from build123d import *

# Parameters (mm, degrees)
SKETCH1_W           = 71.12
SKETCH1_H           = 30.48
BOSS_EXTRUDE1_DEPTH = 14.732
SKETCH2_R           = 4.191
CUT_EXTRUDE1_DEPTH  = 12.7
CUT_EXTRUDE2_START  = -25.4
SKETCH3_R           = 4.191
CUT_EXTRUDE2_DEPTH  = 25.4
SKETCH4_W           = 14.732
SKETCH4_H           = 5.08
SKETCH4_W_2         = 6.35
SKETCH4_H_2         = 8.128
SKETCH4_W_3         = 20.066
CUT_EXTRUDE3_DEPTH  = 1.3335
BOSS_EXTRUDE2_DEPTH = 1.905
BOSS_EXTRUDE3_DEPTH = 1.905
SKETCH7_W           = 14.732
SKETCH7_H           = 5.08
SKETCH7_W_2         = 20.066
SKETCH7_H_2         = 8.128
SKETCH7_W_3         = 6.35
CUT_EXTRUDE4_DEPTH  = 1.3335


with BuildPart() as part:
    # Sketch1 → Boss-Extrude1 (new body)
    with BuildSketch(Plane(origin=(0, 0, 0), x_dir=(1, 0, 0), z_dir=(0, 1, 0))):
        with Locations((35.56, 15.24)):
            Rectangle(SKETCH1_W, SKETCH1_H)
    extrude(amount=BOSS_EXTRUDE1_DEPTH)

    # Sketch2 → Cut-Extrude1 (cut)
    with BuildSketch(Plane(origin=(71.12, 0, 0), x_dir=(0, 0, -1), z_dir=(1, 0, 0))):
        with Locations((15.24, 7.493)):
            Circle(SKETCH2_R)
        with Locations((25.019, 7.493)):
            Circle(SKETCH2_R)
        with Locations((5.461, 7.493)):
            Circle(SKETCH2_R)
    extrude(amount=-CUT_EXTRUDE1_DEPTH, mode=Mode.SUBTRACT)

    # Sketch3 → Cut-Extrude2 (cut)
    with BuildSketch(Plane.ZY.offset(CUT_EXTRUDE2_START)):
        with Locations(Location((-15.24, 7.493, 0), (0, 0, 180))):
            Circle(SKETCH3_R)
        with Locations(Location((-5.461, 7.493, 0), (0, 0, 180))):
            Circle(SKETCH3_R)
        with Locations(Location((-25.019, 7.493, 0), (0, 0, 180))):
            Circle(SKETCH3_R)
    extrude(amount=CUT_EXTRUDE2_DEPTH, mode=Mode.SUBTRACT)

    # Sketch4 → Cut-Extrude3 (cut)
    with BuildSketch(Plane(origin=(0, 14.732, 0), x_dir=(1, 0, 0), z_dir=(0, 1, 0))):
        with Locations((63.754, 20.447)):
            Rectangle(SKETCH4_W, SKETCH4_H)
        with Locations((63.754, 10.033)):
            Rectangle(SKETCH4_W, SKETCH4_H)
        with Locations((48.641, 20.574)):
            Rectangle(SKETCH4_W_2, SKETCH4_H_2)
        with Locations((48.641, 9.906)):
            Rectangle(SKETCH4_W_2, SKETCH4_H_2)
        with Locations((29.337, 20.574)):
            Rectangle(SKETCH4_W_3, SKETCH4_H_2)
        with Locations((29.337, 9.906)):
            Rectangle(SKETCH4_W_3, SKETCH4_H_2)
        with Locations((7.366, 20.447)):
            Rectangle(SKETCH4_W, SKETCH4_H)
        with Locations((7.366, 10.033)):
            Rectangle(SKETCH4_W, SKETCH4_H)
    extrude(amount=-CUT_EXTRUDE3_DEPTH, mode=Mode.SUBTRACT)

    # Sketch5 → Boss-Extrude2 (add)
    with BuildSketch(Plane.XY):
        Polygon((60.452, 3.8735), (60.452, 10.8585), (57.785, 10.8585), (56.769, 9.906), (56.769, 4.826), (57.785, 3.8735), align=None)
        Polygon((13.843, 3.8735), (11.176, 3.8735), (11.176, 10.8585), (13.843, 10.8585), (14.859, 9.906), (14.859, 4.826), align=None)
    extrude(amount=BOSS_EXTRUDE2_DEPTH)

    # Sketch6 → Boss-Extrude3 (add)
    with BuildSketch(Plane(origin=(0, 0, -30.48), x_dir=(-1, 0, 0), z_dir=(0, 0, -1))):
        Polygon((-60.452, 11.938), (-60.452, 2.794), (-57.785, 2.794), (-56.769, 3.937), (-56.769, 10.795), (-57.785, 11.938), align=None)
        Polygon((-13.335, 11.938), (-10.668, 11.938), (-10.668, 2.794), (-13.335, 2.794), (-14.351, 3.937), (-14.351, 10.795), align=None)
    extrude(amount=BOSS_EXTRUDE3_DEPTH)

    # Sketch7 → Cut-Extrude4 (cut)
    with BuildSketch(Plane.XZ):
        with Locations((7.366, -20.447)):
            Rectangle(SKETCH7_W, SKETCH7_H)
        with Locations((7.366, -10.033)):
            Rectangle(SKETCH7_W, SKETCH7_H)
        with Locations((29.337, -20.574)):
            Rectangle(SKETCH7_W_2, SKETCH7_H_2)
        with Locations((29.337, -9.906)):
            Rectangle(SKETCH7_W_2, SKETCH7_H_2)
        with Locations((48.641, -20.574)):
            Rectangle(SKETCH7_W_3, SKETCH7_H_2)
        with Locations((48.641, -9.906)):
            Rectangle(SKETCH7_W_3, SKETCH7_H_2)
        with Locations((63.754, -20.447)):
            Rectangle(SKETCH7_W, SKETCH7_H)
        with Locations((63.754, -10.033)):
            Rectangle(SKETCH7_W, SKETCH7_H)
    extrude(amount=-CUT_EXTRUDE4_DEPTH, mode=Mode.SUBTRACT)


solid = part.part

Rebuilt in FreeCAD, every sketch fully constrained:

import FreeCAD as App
import Part
import Sketcher
from FreeCAD import Vector
Q = App.Units.Quantity


def add_polygon(sketch, points):
    """Adds a closed chain of lines whose ends are joined by coincident constraints."""
    first, n = sketch.GeometryCount, len(points)
    for a, b in zip(points, points[1:] + points[:1]):
        sketch.addGeometry(Part.LineSegment(App.Vector(*a, 0), App.Vector(*b, 0)), False)
    for i in range(n):
        sketch.addConstraint(Sketcher.Constraint("Coincident", first + i, 2, first + (i + 1) % n, 1))

doc = App.newDocument("Part")
params = doc.addObject("Spreadsheet::Sheet", "Params")
for row, (alias, value) in enumerate([
    ("sketch1_width", "2.8 in"),
    ("sketch1_height", "1.2 in"),
    ("pad1_length", "0.58 in"),
    ("sketch2_diameter", "0.33 in"),
    ("pocket1_length", "0.5 in"),
    ("sketch3_diameter", "0.33 in"),
    ("pocket2_length", "1 in"),
    ("sketch4_height", "0.2 in"),
    ("sketch4_width", "0.58 in"),
    ("sketch4_width2", "0.25 in"),
    ("sketch4_width3", "0.79 in"),
    ("sketch4_height2", "0.32 in"),
    ("pocket3_length", "0.0525 in"),
    ("sketch5_height", "0.2 in"),
    ("sketch5_width", "0.105 in"),
    ("sketch5_height2", "0.275 in"),
    ("pad2_length", "0.075 in"),
    ("sketch6_height", "0.36 in"),
    ("sketch6_height2", "0.27 in"),
    ("sketch6_width", "0.105 in"),
    ("pad3_length", "0.075 in"),
    ("sketch7_height", "0.2 in"),
    ("sketch7_width", "0.58 in"),
    ("sketch7_width2", "0.79 in"),
    ("sketch7_width3", "0.25 in"),
    ("sketch7_height2", "0.32 in"),
    ("pocket4_length", "0.0525 in"),
], start=1):
    params.set(f"A{row}", alias)
    params.set(f"B{row}", "=" + value)
    params.setAlias(f"B{row}", alias)

body = doc.addObject("PartDesign::Body", "Body")

sketch1 = body.newObject("Sketcher::SketchObject", "Sketch")
sketch1.AttachmentSupport = (doc.getObject("XZ_Plane"), [""])
sketch1.MapMode = "FlatFace"
add_polygon(sketch1, [(0, -30.48), (0, 0), (71.12, 0), (71.12, -30.48)])
sketch1.addConstraint(Sketcher.Constraint("Vertical", 0))
sketch1.addConstraint(Sketcher.Constraint("Horizontal", 1))
sketch1.addConstraint(Sketcher.Constraint("Vertical", 2))
sketch1.addConstraint(Sketcher.Constraint("Horizontal", 3))
sketch1.addConstraint(Sketcher.Constraint("Coincident", 0, 2, -1, 1))
sketch1.addConstraint(Sketcher.Constraint("DistanceX", 1, 1, 1, 2, Q("2.8 in")))
sketch1.addConstraint(Sketcher.Constraint("DistanceY", 0, 1, 0, 2, Q("1.2 in")))
sketch1.setExpression("Constraints[9]", "Params.sketch1_width")
sketch1.setExpression("Constraints[10]", "Params.sketch1_height")
pad1 = body.newObject("PartDesign::Pad", "Pad")
pad1.Profile = sketch1
pad1.setExpression("Length", "Params.pad1_length")
pad1.Reversed = True

sketch2 = body.newObject("Sketcher::SketchObject", "Sketch001")
sketch2.AttachmentSupport = (doc.getObject("YZ_Plane"), [""])
sketch2.MapMode = "FlatFace"
sketch2.AttachmentOffset = App.Placement(Vector(0, 0, 2.8 * 25.4), App.Rotation())
sketch2.addGeometry(Part.Circle(Vector(7.493, -15.24, 0), Vector(0, 0, 1), 4.191), False)
sketch2.addGeometry(Part.Circle(Vector(7.493, -25.019, 0), Vector(0, 0, 1), 4.191), False)
sketch2.addGeometry(Part.Circle(Vector(7.493, -5.461, 0), Vector(0, 0, 1), 4.191), False)
sketch2.addConstraint(Sketcher.Constraint("Equal", 0, 1))
sketch2.addConstraint(Sketcher.Constraint("Equal", 1, 2))
sketch2.addConstraint(Sketcher.Constraint("Vertical", 0, 3, 1, 3))
sketch2.addConstraint(Sketcher.Constraint("Vertical", 1, 3, 2, 3))
sketch2.addConstraint(Sketcher.Constraint("Diameter", 0, Q("0.33 in")))
sketch2.addConstraint(Sketcher.Constraint("DistanceY", 0, 3, -1, 1, Q("0.6 in")))
sketch2.addConstraint(Sketcher.Constraint("DistanceY", 1, 3, 2, 3, Q("0.77 in")))
sketch2.addConstraint(Sketcher.Constraint("DistanceX", -1, 1, 0, 3, Q("0.295 in")))
sketch2.addConstraint(Sketcher.Constraint("DistanceY", 1, 3, -1, 1, Q("0.985 in")))
sketch2.setExpression("Constraints[4]", "Params.sketch2_diameter")
pocket1 = body.newObject("PartDesign::Pocket", "Pocket")
pocket1.Profile = sketch2
pocket1.setExpression("Length", "Params.pocket1_length")

sketch3 = body.newObject("Sketcher::SketchObject", "Sketch002")
sketch3.AttachmentSupport = (doc.getObject("YZ_Plane"), [""])
sketch3.MapMode = "FlatFace"
sketch3.AttachmentOffset = App.Placement(Vector(0, 0, 1 * 25.4), App.Rotation())
sketch3.addGeometry(Part.Circle(Vector(7.493, -15.24, 0), Vector(0, 0, 1), 4.191), False)
sketch3.addGeometry(Part.Circle(Vector(7.493, -5.461, 0), Vector(0, 0, 1), 4.191), False)
sketch3.addGeometry(Part.Circle(Vector(7.493, -25.019, 0), Vector(0, 0, 1), 4.191), False)
sketch3.addConstraint(Sketcher.Constraint("Equal", 0, 1))
sketch3.addConstraint(Sketcher.Constraint("Equal", 1, 2))
sketch3.addConstraint(Sketcher.Constraint("Vertical", 0, 3, 1, 3))
sketch3.addConstraint(Sketcher.Constraint("Vertical", 1, 3, 2, 3))
sketch3.addConstraint(Sketcher.Constraint("Diameter", 0, Q("0.33 in")))
sketch3.addConstraint(Sketcher.Constraint("DistanceY", 0, 3, -1, 1, Q("0.6 in")))
sketch3.addConstraint(Sketcher.Constraint("DistanceY", 2, 3, 1, 3, Q("0.77 in")))
sketch3.addConstraint(Sketcher.Constraint("DistanceX", -1, 1, 0, 3, Q("0.295 in")))
sketch3.addConstraint(Sketcher.Constraint("DistanceY", 1, 3, -1, 1, Q("0.215 in")))
sketch3.setExpression("Constraints[4]", "Params.sketch3_diameter")
pocket2 = body.newObject("PartDesign::Pocket", "Pocket001")
pocket2.Profile = sketch3
pocket2.setExpression("Length", "Params.pocket2_length")

sketch4 = body.newObject("Sketcher::SketchObject", "Sketch003")
sketch4.AttachmentSupport = (doc.getObject("XZ_Plane"), [""])
sketch4.MapMode = "FlatFace"
sketch4.AttachmentOffset = App.Placement(Vector(0, 0, -0.58 * 25.4), App.Rotation())
add_polygon(sketch4, [(56.388, -22.987), (56.388, -17.907), (71.12, -17.907), (71.12, -22.987)])
add_polygon(sketch4, [(56.388, -12.573), (56.388, -7.493), (71.12, -7.493), (71.12, -12.573)])
add_polygon(sketch4, [(45.466, -24.638), (45.466, -16.51), (51.816, -16.51), (51.816, -24.638)])
add_polygon(sketch4, [(45.466, -13.97), (45.466, -5.842), (51.816, -5.842), (51.816, -13.97)])
add_polygon(sketch4, [(19.304, -24.638), (19.304, -16.51), (39.37, -16.51), (39.37, -24.638)])
add_polygon(sketch4, [(19.304, -13.97), (19.304, -5.842), (39.37, -5.842), (39.37, -13.97)])
add_polygon(sketch4, [(0, -22.987), (0, -17.907), (14.732, -17.907), (14.732, -22.987)])
add_polygon(sketch4, [(0, -12.573), (0, -7.493), (14.732, -7.493), (14.732, -12.573)])
sketch4.addConstraint(Sketcher.Constraint("Vertical", 0))
sketch4.addConstraint(Sketcher.Constraint("Horizontal", 1))
sketch4.addConstraint(Sketcher.Constraint("Vertical", 2))
sketch4.addConstraint(Sketcher.Constraint("Horizontal", 3))
sketch4.addConstraint(Sketcher.Constraint("Vertical", 4))
sketch4.addConstraint(Sketcher.Constraint("Horizontal", 5))
sketch4.addConstraint(Sketcher.Constraint("Vertical", 6))
sketch4.addConstraint(Sketcher.Constraint("Horizontal", 7))
sketch4.addConstraint(Sketcher.Constraint("Vertical", 8))
sketch4.addConstraint(Sketcher.Constraint("Horizontal", 9))
sketch4.addConstraint(Sketcher.Constraint("Vertical", 10))
sketch4.addConstraint(Sketcher.Constraint("Horizontal", 11))
sketch4.addConstraint(Sketcher.Constraint("Vertical", 12))
sketch4.addConstraint(Sketcher.Constraint("Horizontal", 13))
sketch4.addConstraint(Sketcher.Constraint("Vertical", 14))
sketch4.addConstraint(Sketcher.Constraint("Horizontal", 15))
sketch4.addConstraint(Sketcher.Constraint("Vertical", 16))
sketch4.addConstraint(Sketcher.Constraint("Horizontal", 17))
sketch4.addConstraint(Sketcher.Constraint("Vertical", 18))
sketch4.addConstraint(Sketcher.Constraint("Horizontal", 19))
sketch4.addConstraint(Sketcher.Constraint("Vertical", 20))
sketch4.addConstraint(Sketcher.Constraint("Horizontal", 21))
sketch4.addConstraint(Sketcher.Constraint("Vertical", 22))
sketch4.addConstraint(Sketcher.Constraint("Horizontal", 23))
sketch4.addConstraint(Sketcher.Constraint("Vertical", 24))
sketch4.addConstraint(Sketcher.Constraint("Horizontal", 25))
sketch4.addConstraint(Sketcher.Constraint("Vertical", 26))
sketch4.addConstraint(Sketcher.Constraint("Horizontal", 27))
sketch4.addConstraint(Sketcher.Constraint("Vertical", 28))
sketch4.addConstraint(Sketcher.Constraint("Horizontal", 29))
sketch4.addConstraint(Sketcher.Constraint("Vertical", 30))
sketch4.addConstraint(Sketcher.Constraint("Horizontal", 31))
sketch4.addConstraint(Sketcher.Constraint("PointOnObject", 24, 2, -2))
sketch4.addConstraint(Sketcher.Constraint("PointOnObject", 28, 2, -2))
sketch4.addConstraint(Sketcher.Constraint("Horizontal", 9, 2, 16, 2))
sketch4.addConstraint(Sketcher.Constraint("Horizontal", 11, 2, 18, 2))
sketch4.addConstraint(Sketcher.Constraint("Horizontal", 13, 2, 20, 2))
sketch4.addConstraint(Sketcher.Constraint("Horizontal", 15, 2, 22, 2))
sketch4.addConstraint(Sketcher.Constraint("Horizontal", 1, 2, 24, 2))
sketch4.addConstraint(Sketcher.Constraint("Horizontal", 3, 2, 26, 2))
sketch4.addConstraint(Sketcher.Constraint("Horizontal", 5, 2, 28, 2))
sketch4.addConstraint(Sketcher.Constraint("Horizontal", 7, 2, 30, 2))
sketch4.addConstraint(Sketcher.Constraint("Vertical", 3, 2, 4, 2))
sketch4.addConstraint(Sketcher.Constraint("Vertical", 2, 2, 5, 2))
sketch4.addConstraint(Sketcher.Constraint("Vertical", 11, 2, 12, 2))
sketch4.addConstraint(Sketcher.Constraint("Vertical", 10, 2, 13, 2))
sketch4.addConstraint(Sketcher.Constraint("Vertical", 19, 2, 20, 2))
sketch4.addConstraint(Sketcher.Constraint("Vertical", 18, 2, 21, 2))
sketch4.addConstraint(Sketcher.Constraint("Vertical", 26, 2, 29, 2))
sketch4.addConstraint(Sketcher.Constraint("Equal", 7, 25))
sketch4.addConstraint(Sketcher.Constraint("Equal", 2, 4))
sketch4.addConstraint(Sketcher.Constraint("Equal", 10, 12))
sketch4.addConstraint(Sketcher.Constraint("DistanceY", 0, 1, 0, 2, Q("0.2 in")))
sketch4.addConstraint(Sketcher.Constraint("DistanceX", 1, 1, 1, 2, Q("0.58 in")))
sketch4.addConstraint(Sketcher.Constraint("DistanceX", 9, 1, 9, 2, Q("0.25 in")))
sketch4.addConstraint(Sketcher.Constraint("DistanceX", 17, 1, 17, 2, Q("0.79 in")))
sketch4.addConstraint(Sketcher.Constraint("DistanceY", 8, 1, 8, 2, Q("0.32 in")))
sketch4.addConstraint(Sketcher.Constraint("DistanceX", -1, 1, 1, 2, Q("2.8 in")))
sketch4.addConstraint(Sketcher.Constraint("DistanceY", 9, 2, 14, 2, Q("0.1 in")))
sketch4.addConstraint(Sketcher.Constraint("DistanceX", -1, 1, 8, 2, Q("1.79 in")))
sketch4.addConstraint(Sketcher.Constraint("DistanceY", 8, 2, -1, 1, Q("0.65 in")))
sketch4.addConstraint(Sketcher.Constraint("DistanceX", -1, 1, 16, 2, Q("0.76 in")))
sketch4.addConstraint(Sketcher.Constraint("DistanceY", 0, 2, 4, 2, Q("0.41 in")))
sketch4.addConstraint(Sketcher.Constraint("DistanceY", 0, 2, -1, 1, Q("0.705 in")))
sketch4.setExpression("Constraints[84]", "Params.sketch4_height")
sketch4.setExpression("Constraints[85]", "Params.sketch4_width")
sketch4.setExpression("Constraints[86]", "Params.sketch4_width2")
sketch4.setExpression("Constraints[87]", "Params.sketch4_width3")
sketch4.setExpression("Constraints[88]", "Params.sketch4_height2")
pocket3 = body.newObject("PartDesign::Pocket", "Pocket002")
pocket3.Profile = sketch4
pocket3.setExpression("Length", "Params.pocket3_length")
pocket3.Reversed = True

sketch5 = body.newObject("Sketcher::SketchObject", "Sketch004")
sketch5.AttachmentSupport = (doc.getObject("XY_Plane"), [""])
sketch5.MapMode = "FlatFace"
add_polygon(sketch5, [(60.452, 3.8735), (60.452, 10.8585), (57.785, 10.8585), (56.769, 9.906), (56.769, 4.826), (57.785, 3.8735)])
add_polygon(sketch5, [(11.176, 3.8735), (13.843, 3.8735), (14.859, 4.826), (14.859, 9.906), (13.843, 10.8585), (11.176, 10.8585)])
sketch5.addConstraint(Sketcher.Constraint("Vertical", 0))
sketch5.addConstraint(Sketcher.Constraint("Horizontal", 1))
sketch5.addConstraint(Sketcher.Constraint("Vertical", 3))
sketch5.addConstraint(Sketcher.Constraint("Horizontal", 5))
sketch5.addConstraint(Sketcher.Constraint("Horizontal", 6))
sketch5.addConstraint(Sketcher.Constraint("Vertical", 8))
sketch5.addConstraint(Sketcher.Constraint("Horizontal", 10))
sketch5.addConstraint(Sketcher.Constraint("Vertical", 11))
sketch5.addConstraint(Sketcher.Constraint("Parallel", 2, 7))
sketch5.addConstraint(Sketcher.Constraint("Parallel", 4, 9))
sketch5.addConstraint(Sketcher.Constraint("Horizontal", 5, 2, 6, 2))
sketch5.addConstraint(Sketcher.Constraint("Horizontal", 3, 2, 7, 2))
sketch5.addConstraint(Sketcher.Constraint("Horizontal", 2, 2, 8, 2))
sketch5.addConstraint(Sketcher.Constraint("Horizontal", 1, 2, 9, 2))
sketch5.addConstraint(Sketcher.Constraint("Vertical", 1, 2, 4, 2))
sketch5.addConstraint(Sketcher.Constraint("Vertical", 6, 2, 9, 2))
sketch5.addConstraint(Sketcher.Constraint("Equal", 5, 6))
sketch5.addConstraint(Sketcher.Constraint("DistanceY", 3, 2, 3, 1, Q("0.2 in")))
sketch5.addConstraint(Sketcher.Constraint("DistanceX", 1, 2, 1, 1, Q("0.105 in")))
sketch5.addConstraint(Sketcher.Constraint("DistanceY", 0, 1, 0, 2, Q("0.275 in")))
sketch5.addConstraint(Sketcher.Constraint("DistanceX", -1, 1, 0, 2, Q("2.38 in")))
sketch5.addConstraint(Sketcher.Constraint("DistanceY", -1, 1, 2, 2, Q("0.39 in")))
sketch5.addConstraint(Sketcher.Constraint("DistanceX", -1, 1, 10, 2, Q("0.44 in")))
sketch5.addConstraint(Sketcher.Constraint("DistanceX", 2, 2, 1, 2, Q("0.04 in")))
sketch5.setExpression("Constraints[29]", "Params.sketch5_height")
sketch5.setExpression("Constraints[30]", "Params.sketch5_width")
sketch5.setExpression("Constraints[31]", "Params.sketch5_height2")
pad2 = body.newObject("PartDesign::Pad", "Pad001")
pad2.Profile = sketch5
pad2.setExpression("Length", "Params.pad2_length")

sketch6 = body.newObject("Sketcher::SketchObject", "Sketch005")
sketch6.AttachmentSupport = (doc.getObject("XY_Plane"), [""])
sketch6.MapMode = "FlatFace"
sketch6.AttachmentOffset = App.Placement(Vector(0, 0, -1.2 * 25.4), App.Rotation())
add_polygon(sketch6, [(60.452, 11.938), (60.452, 2.794), (57.785, 2.794), (56.769, 3.937), (56.769, 10.795), (57.785, 11.938)])
add_polygon(sketch6, [(10.668, 11.938), (13.335, 11.938), (14.351, 10.795), (14.351, 3.937), (13.335, 2.794), (10.668, 2.794)])
sketch6.addConstraint(Sketcher.Constraint("Vertical", 0))
sketch6.addConstraint(Sketcher.Constraint("Horizontal", 1))
sketch6.addConstraint(Sketcher.Constraint("Vertical", 3))
sketch6.addConstraint(Sketcher.Constraint("Horizontal", 5))
sketch6.addConstraint(Sketcher.Constraint("Horizontal", 6))
sketch6.addConstraint(Sketcher.Constraint("Vertical", 8))
sketch6.addConstraint(Sketcher.Constraint("Horizontal", 10))
sketch6.addConstraint(Sketcher.Constraint("Vertical", 11))
sketch6.addConstraint(Sketcher.Constraint("Parallel", 2, 7))
sketch6.addConstraint(Sketcher.Constraint("Parallel", 4, 9))
sketch6.addConstraint(Sketcher.Constraint("Horizontal", 5, 2, 6, 2))
sketch6.addConstraint(Sketcher.Constraint("Horizontal", 3, 2, 7, 2))
sketch6.addConstraint(Sketcher.Constraint("Horizontal", 2, 2, 8, 2))
sketch6.addConstraint(Sketcher.Constraint("Horizontal", 1, 2, 9, 2))
sketch6.addConstraint(Sketcher.Constraint("Vertical", 1, 2, 4, 2))
sketch6.addConstraint(Sketcher.Constraint("Vertical", 6, 2, 9, 2))
sketch6.addConstraint(Sketcher.Constraint("Equal", 5, 6))
sketch6.addConstraint(Sketcher.Constraint("DistanceY", 0, 2, 0, 1, Q("0.36 in")))
sketch6.addConstraint(Sketcher.Constraint("DistanceY", 3, 1, 3, 2, Q("0.27 in")))
sketch6.addConstraint(Sketcher.Constraint("DistanceX", 1, 2, 1, 1, Q("0.105 in")))
sketch6.addConstraint(Sketcher.Constraint("DistanceX", -1, 1, 0, 2, Q("2.38 in")))
sketch6.addConstraint(Sketcher.Constraint("DistanceY", -1, 1, 0, 2, Q("0.11 in")))
sketch6.addConstraint(Sketcher.Constraint("DistanceX", -1, 1, 10, 2, Q("0.42 in")))
sketch6.addConstraint(Sketcher.Constraint("DistanceX", 2, 2, 1, 2, Q("0.04 in")))
sketch6.setExpression("Constraints[29]", "Params.sketch6_height")
sketch6.setExpression("Constraints[30]", "Params.sketch6_height2")
sketch6.setExpression("Constraints[31]", "Params.sketch6_width")
pad3 = body.newObject("PartDesign::Pad", "Pad002")
pad3.Profile = sketch6
pad3.setExpression("Length", "Params.pad3_length")
pad3.Reversed = True

sketch7 = body.newObject("Sketcher::SketchObject", "Sketch006")
sketch7.AttachmentSupport = (doc.getObject("XZ_Plane"), [""])
sketch7.MapMode = "FlatFace"
add_polygon(sketch7, [(0, -17.907), (0, -22.987), (14.732, -22.987), (14.732, -17.907)])
add_polygon(sketch7, [(0, -7.493), (0, -12.573), (14.732, -12.573), (14.732, -7.493)])
add_polygon(sketch7, [(19.304, -16.51), (19.304, -24.638), (39.37, -24.638), (39.37, -16.51)])
add_polygon(sketch7, [(19.304, -5.842), (19.304, -13.97), (39.37, -13.97), (39.37, -5.842)])
add_polygon(sketch7, [(45.466, -16.51), (45.466, -24.638), (51.816, -24.638), (51.816, -16.51)])
add_polygon(sketch7, [(45.466, -5.842), (45.466, -13.97), (51.816, -13.97), (51.816, -5.842)])
add_polygon(sketch7, [(56.388, -17.907), (56.388, -22.987), (71.12, -22.987), (71.12, -17.907)])
add_polygon(sketch7, [(56.388, -7.493), (56.388, -12.573), (71.12, -12.573), (71.12, -7.493)])
sketch7.addConstraint(Sketcher.Constraint("Vertical", 0))
sketch7.addConstraint(Sketcher.Constraint("Horizontal", 1))
sketch7.addConstraint(Sketcher.Constraint("Vertical", 2))
sketch7.addConstraint(Sketcher.Constraint("Horizontal", 3))
sketch7.addConstraint(Sketcher.Constraint("Vertical", 4))
sketch7.addConstraint(Sketcher.Constraint("Horizontal", 5))
sketch7.addConstraint(Sketcher.Constraint("Vertical", 6))
sketch7.addConstraint(Sketcher.Constraint("Horizontal", 7))
sketch7.addConstraint(Sketcher.Constraint("Vertical", 8))
sketch7.addConstraint(Sketcher.Constraint("Horizontal", 9))
sketch7.addConstraint(Sketcher.Constraint("Vertical", 10))
sketch7.addConstraint(Sketcher.Constraint("Horizontal", 11))
sketch7.addConstraint(Sketcher.Constraint("Vertical", 12))
sketch7.addConstraint(Sketcher.Constraint("Horizontal", 13))
sketch7.addConstraint(Sketcher.Constraint("Vertical", 14))
sketch7.addConstraint(Sketcher.Constraint("Horizontal", 15))
sketch7.addConstraint(Sketcher.Constraint("Vertical", 16))
sketch7.addConstraint(Sketcher.Constraint("Horizontal", 17))
sketch7.addConstraint(Sketcher.Constraint("Vertical", 18))
sketch7.addConstraint(Sketcher.Constraint("Horizontal", 19))
sketch7.addConstraint(Sketcher.Constraint("Vertical", 20))
sketch7.addConstraint(Sketcher.Constraint("Horizontal", 21))
sketch7.addConstraint(Sketcher.Constraint("Vertical", 22))
sketch7.addConstraint(Sketcher.Constraint("Horizontal", 23))
sketch7.addConstraint(Sketcher.Constraint("Vertical", 24))
sketch7.addConstraint(Sketcher.Constraint("Horizontal", 25))
sketch7.addConstraint(Sketcher.Constraint("Vertical", 26))
sketch7.addConstraint(Sketcher.Constraint("Horizontal", 27))
sketch7.addConstraint(Sketcher.Constraint("Vertical", 28))
sketch7.addConstraint(Sketcher.Constraint("Horizontal", 29))
sketch7.addConstraint(Sketcher.Constraint("Vertical", 30))
sketch7.addConstraint(Sketcher.Constraint("Horizontal", 31))
sketch7.addConstraint(Sketcher.Constraint("PointOnObject", 0, 2, -2))
sketch7.addConstraint(Sketcher.Constraint("PointOnObject", 4, 2, -2))
sketch7.addConstraint(Sketcher.Constraint("Horizontal", 9, 2, 16, 2))
sketch7.addConstraint(Sketcher.Constraint("Horizontal", 11, 2, 18, 2))
sketch7.addConstraint(Sketcher.Constraint("Horizontal", 13, 2, 20, 2))
sketch7.addConstraint(Sketcher.Constraint("Horizontal", 15, 2, 22, 2))
sketch7.addConstraint(Sketcher.Constraint("Horizontal", 1, 2, 24, 2))
sketch7.addConstraint(Sketcher.Constraint("Horizontal", 3, 2, 26, 2))
sketch7.addConstraint(Sketcher.Constraint("Horizontal", 5, 2, 28, 2))
sketch7.addConstraint(Sketcher.Constraint("Horizontal", 7, 2, 30, 2))
sketch7.addConstraint(Sketcher.Constraint("Vertical", 2, 2, 5, 2))
sketch7.addConstraint(Sketcher.Constraint("Vertical", 11, 2, 12, 2))
sketch7.addConstraint(Sketcher.Constraint("Vertical", 10, 2, 13, 2))
sketch7.addConstraint(Sketcher.Constraint("Vertical", 19, 2, 20, 2))
sketch7.addConstraint(Sketcher.Constraint("Vertical", 18, 2, 21, 2))
sketch7.addConstraint(Sketcher.Constraint("Vertical", 27, 2, 28, 2))
sketch7.addConstraint(Sketcher.Constraint("Vertical", 26, 2, 29, 2))
sketch7.addConstraint(Sketcher.Constraint("Equal", 7, 25))
sketch7.addConstraint(Sketcher.Constraint("Equal", 2, 4))
sketch7.addConstraint(Sketcher.Constraint("Equal", 10, 12))
sketch7.addConstraint(Sketcher.Constraint("DistanceY", 0, 2, 0, 1, Q("0.2 in")))
sketch7.addConstraint(Sketcher.Constraint("DistanceX", 1, 1, 1, 2, Q("0.58 in")))
sketch7.addConstraint(Sketcher.Constraint("DistanceX", 9, 1, 9, 2, Q("0.79 in")))
sketch7.addConstraint(Sketcher.Constraint("DistanceX", 17, 1, 17, 2, Q("0.25 in")))
sketch7.addConstraint(Sketcher.Constraint("DistanceY", 8, 2, 8, 1, Q("0.32 in")))
sketch7.addConstraint(Sketcher.Constraint("DistanceX", -1, 1, 25, 2, Q("2.8 in")))
sketch7.addConstraint(Sketcher.Constraint("DistanceY", 11, 2, 12, 2, Q("0.1 in")))
sketch7.addConstraint(Sketcher.Constraint("DistanceX", -1, 1, 8, 2, Q("0.76 in")))
sketch7.addConstraint(Sketcher.Constraint("DistanceY", 8, 2, -1, 1, Q("0.97 in")))
sketch7.addConstraint(Sketcher.Constraint("DistanceX", -1, 1, 16, 2, Q("1.79 in")))
sketch7.addConstraint(Sketcher.Constraint("DistanceY", 3, 2, 4, 2, Q("0.21 in")))
sketch7.addConstraint(Sketcher.Constraint("DistanceY", 0, 2, -1, 1, Q("0.905 in")))
sketch7.setExpression("Constraints[84]", "Params.sketch7_height")
sketch7.setExpression("Constraints[85]", "Params.sketch7_width")
sketch7.setExpression("Constraints[86]", "Params.sketch7_width2")
sketch7.setExpression("Constraints[87]", "Params.sketch7_width3")
sketch7.setExpression("Constraints[88]", "Params.sketch7_height2")
pocket4 = body.newObject("PartDesign::Pocket", "Pocket003")
pocket4.Profile = sketch7
pocket4.setExpression("Length", "Params.pocket4_length")

doc.recompute()
